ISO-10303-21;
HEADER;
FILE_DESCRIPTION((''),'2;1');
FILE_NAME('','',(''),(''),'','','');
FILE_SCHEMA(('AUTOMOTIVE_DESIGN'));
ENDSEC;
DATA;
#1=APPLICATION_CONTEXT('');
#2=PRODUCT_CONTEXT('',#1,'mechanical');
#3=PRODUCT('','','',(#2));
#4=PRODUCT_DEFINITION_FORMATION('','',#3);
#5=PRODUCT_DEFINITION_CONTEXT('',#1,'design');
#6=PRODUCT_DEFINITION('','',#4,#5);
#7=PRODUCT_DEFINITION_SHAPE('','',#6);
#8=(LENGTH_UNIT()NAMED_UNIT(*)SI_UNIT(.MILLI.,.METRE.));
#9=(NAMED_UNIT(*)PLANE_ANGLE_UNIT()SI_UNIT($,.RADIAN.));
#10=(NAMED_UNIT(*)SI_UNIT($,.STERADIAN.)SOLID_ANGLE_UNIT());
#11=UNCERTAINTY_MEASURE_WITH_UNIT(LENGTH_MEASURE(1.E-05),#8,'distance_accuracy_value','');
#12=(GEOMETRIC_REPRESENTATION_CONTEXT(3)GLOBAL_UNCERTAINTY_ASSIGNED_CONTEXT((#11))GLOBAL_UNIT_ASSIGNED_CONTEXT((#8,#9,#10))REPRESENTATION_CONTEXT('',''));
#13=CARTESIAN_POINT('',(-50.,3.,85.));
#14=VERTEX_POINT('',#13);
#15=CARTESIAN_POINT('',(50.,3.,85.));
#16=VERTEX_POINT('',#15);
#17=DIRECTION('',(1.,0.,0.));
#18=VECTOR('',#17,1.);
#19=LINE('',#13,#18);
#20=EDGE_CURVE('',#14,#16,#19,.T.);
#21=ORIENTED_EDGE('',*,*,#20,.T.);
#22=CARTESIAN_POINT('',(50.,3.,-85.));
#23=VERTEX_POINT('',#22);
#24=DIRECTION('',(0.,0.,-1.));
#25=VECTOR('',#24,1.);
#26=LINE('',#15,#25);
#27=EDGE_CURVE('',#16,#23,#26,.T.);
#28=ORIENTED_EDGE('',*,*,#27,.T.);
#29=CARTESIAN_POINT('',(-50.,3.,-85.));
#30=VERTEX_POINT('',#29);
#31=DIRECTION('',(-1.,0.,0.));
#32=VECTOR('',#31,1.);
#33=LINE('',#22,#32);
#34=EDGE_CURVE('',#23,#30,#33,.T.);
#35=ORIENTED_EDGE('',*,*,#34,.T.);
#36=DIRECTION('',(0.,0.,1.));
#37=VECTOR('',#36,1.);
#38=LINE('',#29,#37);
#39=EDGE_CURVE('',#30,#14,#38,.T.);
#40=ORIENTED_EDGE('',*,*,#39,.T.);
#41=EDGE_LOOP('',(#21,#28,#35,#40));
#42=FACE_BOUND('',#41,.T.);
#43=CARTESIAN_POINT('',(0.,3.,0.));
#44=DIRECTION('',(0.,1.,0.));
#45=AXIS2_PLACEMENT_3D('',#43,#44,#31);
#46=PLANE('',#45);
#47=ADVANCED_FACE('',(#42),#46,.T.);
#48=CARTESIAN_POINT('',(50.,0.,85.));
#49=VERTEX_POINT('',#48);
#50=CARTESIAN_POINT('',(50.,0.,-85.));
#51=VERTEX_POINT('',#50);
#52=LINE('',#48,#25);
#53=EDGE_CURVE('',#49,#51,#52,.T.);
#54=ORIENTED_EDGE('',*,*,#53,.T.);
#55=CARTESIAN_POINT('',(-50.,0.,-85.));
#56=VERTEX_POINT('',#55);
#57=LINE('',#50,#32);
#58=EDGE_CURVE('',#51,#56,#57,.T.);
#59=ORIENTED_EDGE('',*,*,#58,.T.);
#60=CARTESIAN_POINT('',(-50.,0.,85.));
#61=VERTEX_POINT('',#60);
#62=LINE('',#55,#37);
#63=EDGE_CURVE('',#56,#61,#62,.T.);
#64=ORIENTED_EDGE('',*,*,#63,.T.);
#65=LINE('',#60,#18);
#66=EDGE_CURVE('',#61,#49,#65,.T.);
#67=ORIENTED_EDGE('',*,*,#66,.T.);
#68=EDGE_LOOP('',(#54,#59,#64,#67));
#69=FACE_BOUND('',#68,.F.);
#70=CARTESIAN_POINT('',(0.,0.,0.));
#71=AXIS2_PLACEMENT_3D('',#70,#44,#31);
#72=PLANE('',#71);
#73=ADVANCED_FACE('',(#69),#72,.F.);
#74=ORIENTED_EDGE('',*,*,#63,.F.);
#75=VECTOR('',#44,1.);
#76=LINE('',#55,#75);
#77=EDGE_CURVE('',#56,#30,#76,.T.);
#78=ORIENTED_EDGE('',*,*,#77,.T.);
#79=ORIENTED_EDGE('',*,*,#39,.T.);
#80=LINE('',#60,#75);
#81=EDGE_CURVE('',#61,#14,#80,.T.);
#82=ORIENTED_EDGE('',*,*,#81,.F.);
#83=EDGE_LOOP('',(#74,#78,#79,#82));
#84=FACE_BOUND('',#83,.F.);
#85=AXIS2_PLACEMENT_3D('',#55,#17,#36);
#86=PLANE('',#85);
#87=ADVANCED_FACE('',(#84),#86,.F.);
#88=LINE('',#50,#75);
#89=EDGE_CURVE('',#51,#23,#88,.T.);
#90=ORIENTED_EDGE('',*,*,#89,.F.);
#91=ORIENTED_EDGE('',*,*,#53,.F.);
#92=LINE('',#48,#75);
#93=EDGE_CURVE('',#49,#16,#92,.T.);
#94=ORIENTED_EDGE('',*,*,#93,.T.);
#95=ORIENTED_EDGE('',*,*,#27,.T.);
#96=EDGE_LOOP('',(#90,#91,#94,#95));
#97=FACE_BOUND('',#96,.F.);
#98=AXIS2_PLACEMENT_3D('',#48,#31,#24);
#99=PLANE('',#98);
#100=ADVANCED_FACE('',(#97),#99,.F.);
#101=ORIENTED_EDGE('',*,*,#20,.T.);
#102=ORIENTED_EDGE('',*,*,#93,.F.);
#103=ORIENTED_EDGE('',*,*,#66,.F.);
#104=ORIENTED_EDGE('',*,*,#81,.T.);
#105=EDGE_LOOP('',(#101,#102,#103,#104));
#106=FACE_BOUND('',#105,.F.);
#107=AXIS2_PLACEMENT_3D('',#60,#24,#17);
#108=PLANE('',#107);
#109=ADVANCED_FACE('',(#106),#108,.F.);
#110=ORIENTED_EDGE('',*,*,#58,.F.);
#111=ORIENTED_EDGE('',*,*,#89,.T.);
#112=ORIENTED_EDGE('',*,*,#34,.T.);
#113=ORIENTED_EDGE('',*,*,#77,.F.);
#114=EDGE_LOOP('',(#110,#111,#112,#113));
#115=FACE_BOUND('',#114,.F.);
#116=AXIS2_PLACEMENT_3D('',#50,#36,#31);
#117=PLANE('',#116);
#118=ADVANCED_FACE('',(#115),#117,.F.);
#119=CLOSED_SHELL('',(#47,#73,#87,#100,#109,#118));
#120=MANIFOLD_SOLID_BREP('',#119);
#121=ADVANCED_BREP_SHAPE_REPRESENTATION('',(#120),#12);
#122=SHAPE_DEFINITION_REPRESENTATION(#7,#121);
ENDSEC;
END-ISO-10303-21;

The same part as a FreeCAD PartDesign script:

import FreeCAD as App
import Part
import Sketcher

doc = App.newDocument("Part")
body = doc.addObject("PartDesign::Body", "Body")

# Sketch on XZ plane
sketch1 = doc.addObject("Sketcher::SketchObject", "Sketch")
body.addObject(sketch1)
sketch1.AttachmentSupport = (doc.XZ_Plane, [""])
sketch1.MapMode = "FlatFace"
sketch1.addGeometry([
    Part.LineSegment(App.Vector(-50, -85, 0), App.Vector(-50, 85, 0)),
    Part.LineSegment(App.Vector(-50, 85, 0), App.Vector(50, 85, 0)),
    Part.LineSegment(App.Vector(50, 85, 0), App.Vector(50, -85, 0)),
    Part.LineSegment(App.Vector(50, -85, 0), App.Vector(-50, -85, 0)),
], False)
sketch1.addConstraint([
    Sketcher.Constraint("Coincident", 0, 2, 1, 1),
    Sketcher.Constraint("Coincident", 1, 2, 2, 1),
    Sketcher.Constraint("Coincident", 2, 2, 3, 1),
    Sketcher.Constraint("Coincident", 3, 2, 0, 1),
    Sketcher.Constraint("Vertical", 0),
    Sketcher.Constraint("Horizontal", 1),
    Sketcher.Constraint("Vertical", 2),
    Sketcher.Constraint("Horizontal", 3),
    Sketcher.Constraint("Symmetric", 0, 2, 2, 2, -1, 1),
    Sketcher.Constraint("DistanceX", 1, 1, 1, 2, 100.0),
    Sketcher.Constraint("DistanceY", 0, 1, 0, 2, 170.0),
])
pad1 = doc.addObject("PartDesign::Pad", "Pad")
body.addObject(pad1)
pad1.Profile = sketch1
pad1.Length = 3
pad1.Reversed = True

doc.recompute()
